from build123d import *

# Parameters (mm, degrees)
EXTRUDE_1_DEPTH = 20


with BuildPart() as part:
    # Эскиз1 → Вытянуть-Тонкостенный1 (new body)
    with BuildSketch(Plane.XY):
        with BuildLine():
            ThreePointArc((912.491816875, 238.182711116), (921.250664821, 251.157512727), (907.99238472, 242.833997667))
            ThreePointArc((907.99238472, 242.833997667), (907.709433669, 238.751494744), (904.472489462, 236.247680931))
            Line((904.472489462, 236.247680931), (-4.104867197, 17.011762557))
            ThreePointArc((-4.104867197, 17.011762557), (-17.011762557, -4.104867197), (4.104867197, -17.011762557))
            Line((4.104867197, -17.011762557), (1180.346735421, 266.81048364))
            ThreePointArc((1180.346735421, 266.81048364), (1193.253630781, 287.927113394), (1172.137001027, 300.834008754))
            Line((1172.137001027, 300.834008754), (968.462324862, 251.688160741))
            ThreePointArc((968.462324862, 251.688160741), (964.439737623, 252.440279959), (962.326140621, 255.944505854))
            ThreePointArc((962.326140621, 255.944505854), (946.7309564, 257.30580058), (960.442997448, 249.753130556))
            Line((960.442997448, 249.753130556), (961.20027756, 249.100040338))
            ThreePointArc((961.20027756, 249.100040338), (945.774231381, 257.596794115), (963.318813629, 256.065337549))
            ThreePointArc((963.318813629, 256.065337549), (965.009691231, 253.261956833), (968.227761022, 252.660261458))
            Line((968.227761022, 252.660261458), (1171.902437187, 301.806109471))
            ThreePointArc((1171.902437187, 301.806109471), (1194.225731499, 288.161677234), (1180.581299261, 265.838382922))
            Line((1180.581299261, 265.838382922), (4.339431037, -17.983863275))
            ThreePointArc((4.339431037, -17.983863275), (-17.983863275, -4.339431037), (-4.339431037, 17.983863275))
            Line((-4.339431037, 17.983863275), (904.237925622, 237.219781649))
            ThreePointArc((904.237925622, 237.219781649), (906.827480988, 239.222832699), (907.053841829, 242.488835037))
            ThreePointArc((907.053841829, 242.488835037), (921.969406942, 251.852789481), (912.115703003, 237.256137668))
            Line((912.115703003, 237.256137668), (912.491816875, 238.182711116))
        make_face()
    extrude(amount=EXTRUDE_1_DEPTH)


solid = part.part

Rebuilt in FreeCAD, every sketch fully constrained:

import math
import FreeCAD as App
import Part
import Sketcher
Q = App.Units.Quantity

doc = App.newDocument("Part")
body = doc.addObject("PartDesign::Body", "Body")

# Sketch on XY plane
sketch1 = body.newObject("Sketcher::SketchObject", "Sketch")
sketch1.AttachmentSupport = (doc.getObject("XY_Plane"), [""])
sketch1.MapMode = "FlatFace"
sketch1.addGeometry(Part.ArcOfCircle(Part.Circle(App.Vector(915.5, 245.6, 0), App.Vector(0, 0, 1), 8), math.radians(-112), math.radians(200)), False)
sketch1.addGeometry(Part.LineSegment(App.Vector(912.5, 238.2, 0), App.Vector(912.1, 237.3, 0)), False)
sketch1.addGeometry(Part.ArcOfCircle(Part.Circle(App.Vector(915.5, 245.6, 0), App.Vector(0, 0, 1), 9), math.radians(-112), math.radians(200)), False)
sketch1.addGeometry(Part.ArcOfCircle(Part.Circle(App.Vector(903.3, 241.1, 0), App.Vector(0, 0, 1), 4), math.radians(-76), math.radians(20)), False)
sketch1.addGeometry(Part.LineSegment(App.Vector(904.2, 237.2, 0), App.Vector(-4.3, 18, 0)), False)
sketch1.addGeometry(Part.ArcOfCircle(Part.Circle(App.Vector(0, 0, 0), App.Vector(0, 0, 1), 18.5), math.radians(104), math.radians(284)), False)
sketch1.addGeometry(Part.LineSegment(App.Vector(4.3, -18, 0), App.Vector(1180.6, 265.8, 0)), False)
sketch1.addGeometry(Part.ArcOfCircle(Part.Circle(App.Vector(1176.2, 283.8, 0), App.Vector(0, 0, 1), 18.5), math.radians(-76), math.radians(104)), False)
sketch1.addGeometry(Part.LineSegment(App.Vector(1171.9, 301.8, 0), App.Vector(968.2, 252.7, 0)), False)
sketch1.addGeometry(Part.ArcOfCircle(Part.Circle(App.Vector(967.3, 256.5, 0), App.Vector(0, 0, 1), 4), math.radians(-173), math.radians(-76)), False)
sketch1.addGeometry(Part.ArcOfCircle(Part.Circle(App.Vector(954.4, 255, 0), App.Vector(0, 0, 1), 9), math.radians(7), math.radians(319)), False)
sketch1.addGeometry(Part.LineSegment(App.Vector(961.2, 249.1, 0), App.Vector(960.4, 249.8, 0)), False)
sketch1.addGeometry(Part.ArcOfCircle(Part.Circle(App.Vector(954.4, 255, 0), App.Vector(0, 0, 1), 8), math.radians(7), math.radians(319)), False)
sketch1.addGeometry(Part.ArcOfCircle(Part.Circle(App.Vector(967.3, 256.5, 0), App.Vector(0, 0, 1), 5), math.radians(-173), math.radians(-76)), False)
sketch1.addGeometry(Part.LineSegment(App.Vector(968.5, 251.7, 0), App.Vector(1172.1, 300.8, 0)), False)
sketch1.addGeometry(Part.ArcOfCircle(Part.Circle(App.Vector(1176.2, 283.8, 0), App.Vector(0, 0, 1), 17.5), math.radians(-76), math.radians(104)), False)
sketch1.addGeometry(Part.LineSegment(App.Vector(1180.3, 266.8, 0), App.Vector(4.1, -17, 0)), False)
sketch1.addGeometry(Part.ArcOfCircle(Part.Circle(App.Vector(0, 0, 0), App.Vector(0, 0, 1), 17.5), math.radians(104), math.radians(284)), False)
sketch1.addGeometry(Part.LineSegment(App.Vector(-4.1, 17, 0), App.Vector(904.5, 236.2, 0)), False)
sketch1.addGeometry(Part.ArcOfCircle(Part.Circle(App.Vector(903.3, 241.1, 0), App.Vector(0, 0, 1), 5), math.radians(-76), math.radians(20)), False)
sketch1.addConstraint(Sketcher.Constraint("Coincident", 0, 1, 1, 1))
sketch1.addConstraint(Sketcher.Constraint("Coincident", 1, 2, 2, 1))
sketch1.addConstraint(Sketcher.Constraint("Tangent", 2, 2, 3, 2))
sketch1.addConstraint(Sketcher.Constraint("Tangent", 3, 1, 4, 1))
sketch1.addConstraint(Sketcher.Constraint("Tangent", 4, 2, 5, 1))
sketch1.addConstraint(Sketcher.Constraint("Tangent", 5, 2, 6, 1))
sketch1.addConstraint(Sketcher.Constraint("Tangent", 6, 2, 7, 1))
sketch1.addConstraint(Sketcher.Constraint("Tangent", 7, 2, 8, 1))
sketch1.addConstraint(Sketcher.Constraint("Tangent", 8, 2, 9, 2))
sketch1.addConstraint(Sketcher.Constraint("Tangent", 9, 1, 10, 1))
sketch1.addConstraint(Sketcher.Constraint("Coincident", 10, 2, 11, 1))
sketch1.addConstraint(Sketcher.Constraint("Coincident", 11, 2, 12, 2))
sketch1.addConstraint(Sketcher.Constraint("Tangent", 12, 1, 13, 1))
sketch1.addConstraint(Sketcher.Constraint("Tangent", 13, 2, 14, 1))
sketch1.addConstraint(Sketcher.Constraint("Tangent", 14, 2, 15, 2))
sketch1.addConstraint(Sketcher.Constraint("Tangent", 15, 1, 16, 1))
sketch1.addConstraint(Sketcher.Constraint("Tangent", 16, 2, 17, 2))
sketch1.addConstraint(Sketcher.Constraint("Tangent", 17, 1, 18, 1))
sketch1.addConstraint(Sketcher.Constraint("Tangent", 18, 2, 19, 1))
sketch1.addConstraint(Sketcher.Constraint("Tangent", 19, 2, 0, 2))
sketch1.addConstraint(Sketcher.Constraint("Coincident", 5, 3, -1, 1))
sketch1.addConstraint(Sketcher.Constraint("Coincident", 17, 3, -1, 1))
sketch1.addConstraint(Sketcher.Constraint("Coincident", 2, 3, 0, 3))
sketch1.addConstraint(Sketcher.Constraint("Coincident", 12, 3, 10, 3))
sketch1.addConstraint(Sketcher.Constraint("Coincident", 13, 3, 9, 3))
sketch1.addConstraint(Sketcher.Constraint("Coincident", 15, 3, 7, 3))
sketch1.addConstraint(Sketcher.Constraint("Coincident", 19, 3, 3, 3))
sketch1.addConstraint(Sketcher.Constraint("Equal", 5, 7))
sketch1.addConstraint(Sketcher.Constraint("Equal", 3, 9))
sketch1.addConstraint(Sketcher.Constraint("Equal", 2, 10))
sketch1.addConstraint(Sketcher.Constraint("Equal", 0, 12))
sketch1.addConstraint(Sketcher.Constraint("Equal", 15, 17))
sketch1.addConstraint(Sketcher.Constraint("Parallel", 4, 6))
sketch1.addConstraint(Sketcher.Constraint("Parallel", 6, 8))
sketch1.addConstraint(Sketcher.Constraint("Parallel", 8, 14))
sketch1.addConstraint(Sketcher.Constraint("Radius", 0, Q("8 mm")))
sketch1.addConstraint(Sketcher.Constraint("Radius", 2, Q("9 mm")))
sketch1.addConstraint(Sketcher.Constraint("Radius", 3, Q("4 mm")))
sketch1.addConstraint(Sketcher.Constraint("Radius", 5, Q("18.5 mm")))
sketch1.addConstraint(Sketcher.Constraint("Distance", 6, Q("1210 mm")))
sketch1.addConstraint(Sketcher.Constraint("DistanceX", -1, 1, 14, 2, Q("1172.137001 mm")))
sketch1.addConstraint(Sketcher.Constraint("DistanceY", -1, 1, 0, 3, Q("245.595299 mm")))
sketch1.addConstraint(Sketcher.Constraint("DistanceX", 4, 2, 19, 3, Q("907.639101 mm")))
sketch1.addConstraint(Sketcher.Constraint("DistanceY", -1, 1, 0, 1, Q("238.182711 mm")))
sketch1.addConstraint(Sketcher.Constraint("DistanceX", -1, 1, 8, 2, Q("968.227761 mm")))
sketch1.addConstraint(Sketcher.Constraint("DistanceY", -1, 1, 10, 2, Q("249.10004 mm")))
sketch1.addConstraint(Sketcher.Constraint("DistanceY", -1, 1, 11, 2, Q("249.753131 mm")))
sketch1.addConstraint(Sketcher.Constraint("DistanceX", -1, 1, 12, 1, Q("962.326141 mm")))
sketch1.addConstraint(Sketcher.Constraint("DistanceY", 1, 2, 0, 3, Q("8.339161 mm")))
pad1 = body.newObject("PartDesign::Pad", "Pad")
pad1.Profile = sketch1
pad1.Length = 20

doc.recompute()
